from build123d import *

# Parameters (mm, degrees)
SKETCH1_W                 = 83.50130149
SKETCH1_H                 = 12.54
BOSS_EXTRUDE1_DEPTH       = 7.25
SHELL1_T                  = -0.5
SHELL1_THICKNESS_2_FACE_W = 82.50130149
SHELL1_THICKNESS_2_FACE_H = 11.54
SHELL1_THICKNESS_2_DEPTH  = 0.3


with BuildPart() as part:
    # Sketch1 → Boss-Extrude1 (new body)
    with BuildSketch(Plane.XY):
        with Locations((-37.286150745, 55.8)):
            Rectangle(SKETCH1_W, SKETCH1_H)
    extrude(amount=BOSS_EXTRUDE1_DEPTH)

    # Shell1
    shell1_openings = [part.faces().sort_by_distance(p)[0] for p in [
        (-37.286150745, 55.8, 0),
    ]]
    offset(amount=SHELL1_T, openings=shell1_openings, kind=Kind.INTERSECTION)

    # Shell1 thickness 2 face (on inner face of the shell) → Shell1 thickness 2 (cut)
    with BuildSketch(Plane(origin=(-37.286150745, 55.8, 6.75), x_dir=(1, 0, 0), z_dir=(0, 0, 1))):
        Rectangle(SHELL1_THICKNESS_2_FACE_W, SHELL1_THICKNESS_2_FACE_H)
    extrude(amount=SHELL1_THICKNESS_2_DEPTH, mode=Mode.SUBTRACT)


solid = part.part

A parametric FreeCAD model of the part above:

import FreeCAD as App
import Part
import Sketcher
from FreeCAD import Vector
Q = App.Units.Quantity


def faces_at(feature, points):
    """Names of the faces that lie closest to the given points."""
    faces = feature.Shape.Faces
    near = lambda p: min(range(len(faces)), key=lambda i: faces[i].distToShape(Part.Vertex(*p))[0])
    return sorted({f"Face{near(p) + 1}" for p in points})

doc = App.newDocument("Part")
body = doc.addObject("PartDesign::Body", "Body")

sketch1 = doc.addObject("Sketcher::SketchObject", "Sketch")
body.addObject(sketch1)
sketch1.AttachmentSupport = (doc.XY_Plane, [""])
sketch1.MapMode = "FlatFace"
sketch1.addGeometry(Part.LineSegment(Vector(-79.036801, 62.07, 0), Vector(-79.036801, 49.53, 0)), False)
sketch1.addGeometry(Part.LineSegment(Vector(-79.036801, 49.53, 0), Vector(4.4645, 49.53, 0)), False)
sketch1.addGeometry(Part.LineSegment(Vector(4.4645, 49.53, 0), Vector(4.4645, 62.07, 0)), False)
sketch1.addGeometry(Part.LineSegment(Vector(4.4645, 62.07, 0), Vector(-79.036801, 62.07, 0)), False)
sketch1.addConstraint(Sketcher.Constraint("Coincident", 0, 2, 1, 1))
sketch1.addConstraint(Sketcher.Constraint("Coincident", 1, 2, 2, 1))
sketch1.addConstraint(Sketcher.Constraint("Coincident", 2, 2, 3, 1))
sketch1.addConstraint(Sketcher.Constraint("Coincident", 3, 2, 0, 1))
sketch1.addConstraint(Sketcher.Constraint("Vertical", 0))
sketch1.addConstraint(Sketcher.Constraint("Horizontal", 1))
sketch1.addConstraint(Sketcher.Constraint("Vertical", 2))
sketch1.addConstraint(Sketcher.Constraint("Horizontal", 3))
sketch1.addConstraint(Sketcher.Constraint("DistanceY", 0, 2, 0, 1, Q("12.54 mm")))
sketch1.addConstraint(Sketcher.Constraint("DistanceY", -1, 1, 0, 2, Q("49.53 mm")))
sketch1.addConstraint(Sketcher.Constraint("DistanceX", 1, 1, 1, 2, Q("83.501301 mm")))
sketch1.addConstraint(Sketcher.Constraint("DistanceX", 0, 2, -1, 1, Q("79.036801 mm")))
pad1 = doc.addObject("PartDesign::Pad", "Pad")
body.addObject(pad1)
pad1.Profile = sketch1
pad1.Length = 7.25
doc.recompute()

thickness = doc.addObject("PartDesign::Thickness", "Thickness")
body.addObject(thickness)
thickness.Base = (pad1, faces_at(pad1, [(-37.286, 55.8, 0)]))
thickness.Value = 0.5
thickness.Reversed = True
thickness.Join = "Intersection"

sketch2 = doc.addObject("Sketcher::SketchObject", "Sketch001")
body.addObject(sketch2)
sketch2.AttachmentSupport = (doc.XY_Plane, [""])
sketch2.MapMode = "FlatFace"
sketch2.AttachmentOffset = App.Placement(Vector(0, 0, 6.75), App.Rotation())
sketch2.addGeometry(Part.LineSegment(Vector(-78.536801, 61.57, 0), Vector(-78.536801, 50.03, 0)), False)
sketch2.addGeometry(Part.LineSegment(Vector(-78.536801, 50.03, 0), Vector(3.9645, 50.03, 0)), False)
sketch2.addGeometry(Part.LineSegment(Vector(3.9645, 50.03, 0), Vector(3.9645, 61.57, 0)), False)
sketch2.addGeometry(Part.LineSegment(Vector(3.9645, 61.57, 0), Vector(-78.536801, 61.57, 0)), False)
sketch2.addConstraint(Sketcher.Constraint("Coincident", 0, 2, 1, 1))
sketch2.addConstraint(Sketcher.Constraint("Coincident", 1, 2, 2, 1))
sketch2.addConstraint(Sketcher.Constraint("Coincident", 2, 2, 3, 1))
sketch2.addConstraint(Sketcher.Constraint("Coincident", 3, 2, 0, 1))
sketch2.addConstraint(Sketcher.Constraint("Vertical", 0))
sketch2.addConstraint(Sketcher.Constraint("Horizontal", 1))
sketch2.addConstraint(Sketcher.Constraint("Vertical", 2))
sketch2.addConstraint(Sketcher.Constraint("Horizontal", 3))
sketch2.addConstraint(Sketcher.Constraint("DistanceY", 0, 2, 0, 1, Q("11.54 mm")))
sketch2.addConstraint(Sketcher.Constraint("DistanceY", -1, 1, 0, 2, Q("50.03 mm")))
sketch2.addConstraint(Sketcher.Constraint("DistanceX", 1, 1, 1, 2, Q("82.501301 mm")))
sketch2.addConstraint(Sketcher.Constraint("DistanceX", 0, 2, -1, 1, Q("78.536801 mm")))
pocket1 = doc.addObject("PartDesign::Pocket", "Pocket")
body.addObject(pocket1)
pocket1.Profile = sketch2
pocket1.Length = 0.3
pocket1.Reversed = True

doc.recompute()
